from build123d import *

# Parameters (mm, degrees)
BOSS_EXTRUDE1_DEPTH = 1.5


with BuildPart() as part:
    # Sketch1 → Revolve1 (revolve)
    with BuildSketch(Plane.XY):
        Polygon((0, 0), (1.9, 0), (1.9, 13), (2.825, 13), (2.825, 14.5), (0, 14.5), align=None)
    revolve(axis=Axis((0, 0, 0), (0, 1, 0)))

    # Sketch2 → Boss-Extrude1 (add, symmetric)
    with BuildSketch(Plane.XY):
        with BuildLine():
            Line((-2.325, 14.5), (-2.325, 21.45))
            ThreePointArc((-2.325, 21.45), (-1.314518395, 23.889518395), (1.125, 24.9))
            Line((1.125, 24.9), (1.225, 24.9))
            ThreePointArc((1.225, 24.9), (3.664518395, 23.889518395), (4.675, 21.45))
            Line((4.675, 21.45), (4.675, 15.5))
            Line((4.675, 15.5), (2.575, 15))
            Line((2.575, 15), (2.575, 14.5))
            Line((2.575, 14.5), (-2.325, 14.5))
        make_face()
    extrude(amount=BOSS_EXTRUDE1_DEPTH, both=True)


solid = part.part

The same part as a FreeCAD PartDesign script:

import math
import FreeCAD as App
import Part
import Sketcher
Q = App.Units.Quantity


def add_polygon(sketch, points):
    """Adds a closed chain of lines whose ends are joined by coincident constraints."""
    first, n = sketch.GeometryCount, len(points)
    for a, b in zip(points, points[1:] + points[:1]):
        sketch.addGeometry(Part.LineSegment(App.Vector(*a, 0), App.Vector(*b, 0)), False)
    for i in range(n):
        sketch.addConstraint(Sketcher.Constraint("Coincident", first + i, 2, first + (i + 1) % n, 1))

doc = App.newDocument("Part")
body = doc.addObject("PartDesign::Body", "Body")

sketch1 = body.newObject("Sketcher::SketchObject", "Sketch")
sketch1.AttachmentSupport = (doc.getObject("XY_Plane"), [""])
sketch1.MapMode = "FlatFace"
add_polygon(sketch1, [(0, 0), (1.9, 0), (1.9, 13), (2.825, 13), (2.825, 14.5), (0, 14.5)])
sketch1.addConstraint(Sketcher.Constraint("Horizontal", 0))
sketch1.addConstraint(Sketcher.Constraint("Vertical", 1))
sketch1.addConstraint(Sketcher.Constraint("Horizontal", 2))
sketch1.addConstraint(Sketcher.Constraint("Vertical", 3))
sketch1.addConstraint(Sketcher.Constraint("Horizontal", 4))
sketch1.addConstraint(Sketcher.Constraint("Vertical", 5))
sketch1.addConstraint(Sketcher.Constraint("Coincident", 5, 2, -1, 1))
sketch1.addConstraint(Sketcher.Constraint("DistanceY", 1, 1, 1, 2, Q("13 mm")))
sketch1.addConstraint(Sketcher.Constraint("DistanceX", 0, 1, 0, 2, Q("1.9 mm")))
sketch1.addConstraint(Sketcher.Constraint("DistanceY", 3, 1, 3, 2, Q("1.5 mm")))
sketch1.addConstraint(Sketcher.Constraint("DistanceX", 2, 1, 2, 2, Q("0.925 mm")))
revolution = body.newObject("PartDesign::Revolution", "Revolution")
revolution.Profile = sketch1
revolution.ReferenceAxis = (sketch1, ["V_Axis"])
revolution.Angle = 360

sketch2 = body.newObject("Sketcher::SketchObject", "Sketch001")
sketch2.AttachmentSupport = (doc.getObject("XY_Plane"), [""])
sketch2.MapMode = "FlatFace"
sketch2.addGeometry(Part.LineSegment(App.Vector(-2.325, 21.45, 0), App.Vector(-2.325, 14.5, 0)), False)
sketch2.addGeometry(Part.LineSegment(App.Vector(-2.325, 14.5, 0), App.Vector(2.575, 14.5, 0)), False)
sketch2.addGeometry(Part.LineSegment(App.Vector(2.575, 14.5, 0), App.Vector(2.575, 15, 0)), False)
sketch2.addGeometry(Part.LineSegment(App.Vector(2.575, 15, 0), App.Vector(4.675, 15.5, 0)), False)
sketch2.addGeometry(Part.LineSegment(App.Vector(4.675, 15.5, 0), App.Vector(4.675, 21.45, 0)), False)
sketch2.addGeometry(Part.ArcOfCircle(Part.Circle(App.Vector(1.225, 21.45, 0), App.Vector(0, 0, 1), 3.45), math.radians(0), math.radians(90)), False)
sketch2.addGeometry(Part.LineSegment(App.Vector(1.225, 24.9, 0), App.Vector(1.125, 24.9, 0)), False)
sketch2.addGeometry(Part.ArcOfCircle(Part.Circle(App.Vector(1.125, 21.45, 0), App.Vector(0, 0, 1), 3.45), math.radians(90), math.radians(180)), False)
sketch2.addConstraint(Sketcher.Constraint("Coincident", 0, 2, 1, 1))
sketch2.addConstraint(Sketcher.Constraint("Coincident", 1, 2, 2, 1))
sketch2.addConstraint(Sketcher.Constraint("Coincident", 2, 2, 3, 1))
sketch2.addConstraint(Sketcher.Constraint("Coincident", 3, 2, 4, 1))
sketch2.addConstraint(Sketcher.Constraint("Tangent", 4, 2, 5, 1))
sketch2.addConstraint(Sketcher.Constraint("Tangent", 5, 2, 6, 1))
sketch2.addConstraint(Sketcher.Constraint("Tangent", 6, 2, 7, 1))
sketch2.addConstraint(Sketcher.Constraint("Tangent", 7, 2, 0, 1))
sketch2.addConstraint(Sketcher.Constraint("Vertical", 0))
sketch2.addConstraint(Sketcher.Constraint("Horizontal", 1))
sketch2.addConstraint(Sketcher.Constraint("Vertical", 2))
sketch2.addConstraint(Sketcher.Constraint("Vertical", 4))
sketch2.addConstraint(Sketcher.Constraint("Horizontal", 6))
sketch2.addConstraint(Sketcher.Constraint("Equal", 5, 7))
sketch2.addConstraint(Sketcher.Constraint("Radius", 5, Q("3.45 mm")))
sketch2.addConstraint(Sketcher.Constraint("DistanceX", 1, 1, 1, 2, Q("4.9 mm")))
sketch2.addConstraint(Sketcher.Constraint("DistanceX", 6, 2, 6, 1, Q("0.1 mm")))
sketch2.addConstraint(Sketcher.Constraint("DistanceY", 2, 1, 2, 2, Q("0.5 mm")))
sketch2.addConstraint(Sketcher.Constraint("DistanceY", -1, 1, 2, 2, Q("15 mm")))
sketch2.addConstraint(Sketcher.Constraint("DistanceY", 1, 2, 3, 2, Q("1 mm")))
sketch2.addConstraint(Sketcher.Constraint("DistanceY", 0, 2, 0, 1, Q("6.95 mm")))
sketch2.addConstraint(Sketcher.Constraint("DistanceX", -1, 1, 5, 3, Q("1.225 mm")))
pad1 = body.newObject("PartDesign::Pad", "Pad")
pad1.Profile = sketch2
pad1.Length = 3
pad1.Midplane = True

doc.recompute()
